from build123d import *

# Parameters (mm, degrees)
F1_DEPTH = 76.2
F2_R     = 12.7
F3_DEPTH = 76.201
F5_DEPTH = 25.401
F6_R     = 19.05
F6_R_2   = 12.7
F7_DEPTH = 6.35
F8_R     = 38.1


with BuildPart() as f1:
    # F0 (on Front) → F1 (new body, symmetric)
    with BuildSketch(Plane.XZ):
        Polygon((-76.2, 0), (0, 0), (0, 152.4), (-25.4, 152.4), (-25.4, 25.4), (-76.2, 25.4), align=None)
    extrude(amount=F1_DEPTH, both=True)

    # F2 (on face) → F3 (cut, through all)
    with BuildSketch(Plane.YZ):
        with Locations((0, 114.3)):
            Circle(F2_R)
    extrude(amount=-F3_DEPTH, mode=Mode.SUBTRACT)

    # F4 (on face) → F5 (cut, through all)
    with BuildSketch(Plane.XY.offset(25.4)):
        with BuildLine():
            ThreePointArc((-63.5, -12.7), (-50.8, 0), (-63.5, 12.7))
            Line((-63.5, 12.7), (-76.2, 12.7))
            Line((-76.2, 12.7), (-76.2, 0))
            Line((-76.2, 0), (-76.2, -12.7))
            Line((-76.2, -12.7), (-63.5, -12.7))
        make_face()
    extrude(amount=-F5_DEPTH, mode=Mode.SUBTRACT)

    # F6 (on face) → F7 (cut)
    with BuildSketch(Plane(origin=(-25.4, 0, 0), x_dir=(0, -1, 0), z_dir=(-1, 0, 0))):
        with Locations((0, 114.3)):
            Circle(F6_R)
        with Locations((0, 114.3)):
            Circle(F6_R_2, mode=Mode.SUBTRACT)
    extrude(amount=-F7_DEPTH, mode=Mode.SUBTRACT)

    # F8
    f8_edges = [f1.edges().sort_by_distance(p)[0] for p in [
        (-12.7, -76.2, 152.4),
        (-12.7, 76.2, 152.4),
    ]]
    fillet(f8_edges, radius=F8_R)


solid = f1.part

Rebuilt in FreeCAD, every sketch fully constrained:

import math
import FreeCAD as App
import Part
import Sketcher
from FreeCAD import Vector
Q = App.Units.Quantity


def edges_at(feature, points):
    """Names of the edges that pass closest to the given points."""
    edges = feature.Shape.Edges
    near = lambda p: min(range(len(edges)), key=lambda i: edges[i].distToShape(Part.Vertex(*p))[0])
    return sorted({f"Edge{near(p) + 1}" for p in points})


def add_polygon(sketch, points):
    """Adds a closed chain of lines whose ends are joined by coincident constraints."""
    first, n = sketch.GeometryCount, len(points)
    for a, b in zip(points, points[1:] + points[:1]):
        sketch.addGeometry(Part.LineSegment(App.Vector(*a, 0), App.Vector(*b, 0)), False)
    for i in range(n):
        sketch.addConstraint(Sketcher.Constraint("Coincident", first + i, 2, first + (i + 1) % n, 1))

doc = App.newDocument("Part")
body = doc.addObject("PartDesign::Body", "Body")

# Sketch on XZ plane
sketch1 = body.newObject("Sketcher::SketchObject", "Sketch")
sketch1.AttachmentSupport = (doc.getObject("XZ_Plane"), [""])
sketch1.MapMode = "FlatFace"
add_polygon(sketch1, [(-76.2, 0), (0, 0), (0, 152.4), (-25.4, 152.4), (-25.4, 25.4), (-76.2, 25.4)])  # lines 0-5
sketch1.addConstraint(Sketcher.Constraint("Horizontal", 0))
sketch1.addConstraint(Sketcher.Constraint("Vertical", 1))
sketch1.addConstraint(Sketcher.Constraint("Horizontal", 2))
sketch1.addConstraint(Sketcher.Constraint("Vertical", 3))
sketch1.addConstraint(Sketcher.Constraint("Horizontal", 4))
sketch1.addConstraint(Sketcher.Constraint("Vertical", 5))
sketch1.addConstraint(Sketcher.Constraint("Coincident", 0, 2, -1, 1))
sketch1.addConstraint(Sketcher.Constraint("Equal", 2, 5))
sketch1.addConstraint(Sketcher.Constraint("DistanceX", 0, 1, 0, 2, Q("3 in")))
sketch1.addConstraint(Sketcher.Constraint("DistanceX", 2, 2, 2, 1, Q("1 in")))
sketch1.addConstraint(Sketcher.Constraint("DistanceY", 1, 1, 1, 2, Q("6 in")))
pad1 = body.newObject("PartDesign::Pad", "Pad")
pad1.Profile = sketch1
pad1.Length = Q("6 in")
pad1.Midplane = True

# Sketch on YZ plane
sketch2 = body.newObject("Sketcher::SketchObject", "Sketch001")
sketch2.AttachmentSupport = (doc.getObject("YZ_Plane"), [""])
sketch2.MapMode = "FlatFace"
sketch2.addGeometry(Part.Circle(Vector(0, 114.3, 0), Vector(0, 0, 1), 12.7), False)
sketch2.addConstraint(Sketcher.Constraint("PointOnObject", 0, 3, -2))
sketch2.addConstraint(Sketcher.Constraint("Diameter", 0, Q("1 in")))
sketch2.addConstraint(Sketcher.Constraint("DistanceY", -1, 1, 0, 3, Q("4.5 in")))
pocket1 = body.newObject("PartDesign::Pocket", "Pocket")
pocket1.Profile = sketch2
pocket1.Type = "ThroughAll"

# Sketch on XY plane
sketch3 = body.newObject("Sketcher::SketchObject", "Sketch002")
sketch3.AttachmentSupport = (doc.getObject("XY_Plane"), [""])
sketch3.MapMode = "FlatFace"
sketch3.AttachmentOffset = App.Placement(Vector(0, 0, 1 * 25.4), App.Rotation())
sketch3.addGeometry(Part.ArcOfCircle(Part.Circle(Vector(-63.5, 0, 0), Vector(0, 0, 1), 12.7), math.radians(-90), math.radians(90)), False)
sketch3.addGeometry(Part.LineSegment(Vector(-63.5, 12.7, 0), Vector(-76.2, 12.7, 0)), False)
sketch3.addGeometry(Part.LineSegment(Vector(-76.2, 12.7, 0), Vector(-76.2, -12.7, 0)), False)
sketch3.addGeometry(Part.LineSegment(Vector(-76.2, -12.7, 0), Vector(-63.5, -12.7, 0)), False)
sketch3.addConstraint(Sketcher.Constraint("Tangent", 0, 2, 1, 1))
sketch3.addConstraint(Sketcher.Constraint("Coincident", 1, 2, 2, 1))
sketch3.addConstraint(Sketcher.Constraint("Coincident", 2, 2, 3, 1))
sketch3.addConstraint(Sketcher.Constraint("Tangent", 3, 2, 0, 1))
sketch3.addConstraint(Sketcher.Constraint("Horizontal", 1))
sketch3.addConstraint(Sketcher.Constraint("Vertical", 2))
sketch3.addConstraint(Sketcher.Constraint("Horizontal", 3))
sketch3.addConstraint(Sketcher.Constraint("PointOnObject", 0, 3, -1))
sketch3.addConstraint(Sketcher.Constraint("Radius", 0, Q("0.5 in")))
sketch3.addConstraint(Sketcher.Constraint("DistanceX", 1, 2, 1, 1, Q("0.5 in")))
sketch3.addConstraint(Sketcher.Constraint("DistanceX", 1, 2, -1, 1, Q("3 in")))
pocket2 = body.newObject("PartDesign::Pocket", "Pocket001")
pocket2.Profile = sketch3
pocket2.Type = "ThroughAll"

# Sketch on YZ plane
sketch4 = body.newObject("Sketcher::SketchObject", "Sketch003")
sketch4.AttachmentSupport = (doc.getObject("YZ_Plane"), [""])
sketch4.MapMode = "FlatFace"
sketch4.AttachmentOffset = App.Placement(Vector(0, 0, -1 * 25.4), App.Rotation())
sketch4.addGeometry(Part.Circle(Vector(0, 114.3, 0), Vector(0, 0, 1), 19.05), False)
sketch4.addGeometry(Part.Circle(Vector(0, 114.3, 0), Vector(0, 0, 1), 12.7), False)
sketch4.addConstraint(Sketcher.Constraint("Coincident", 1, 3, 0, 3))
sketch4.addConstraint(Sketcher.Constraint("PointOnObject", 0, 3, -2))
sketch4.addConstraint(Sketcher.Constraint("Diameter", 1, Q("1 in")))
sketch4.addConstraint(Sketcher.Constraint("Diameter", 0, Q("1.5 in")))
sketch4.addConstraint(Sketcher.Constraint("DistanceY", -1, 1, 0, 3, Q("4.5 in")))
pocket3 = body.newObject("PartDesign::Pocket", "Pocket002")
pocket3.Profile = sketch4
pocket3.Length = Q("0.25 in")
pocket3.Reversed = True
doc.recompute()

fillet = body.newObject("PartDesign::Fillet", "Fillet")
fillet.Base = (pocket3, edges_at(pocket3, [(-12.7, -76.2, 152.4), (-12.7, 76.2, 152.4)]))
fillet.Radius = Q("1.5 in")

doc.recompute()
